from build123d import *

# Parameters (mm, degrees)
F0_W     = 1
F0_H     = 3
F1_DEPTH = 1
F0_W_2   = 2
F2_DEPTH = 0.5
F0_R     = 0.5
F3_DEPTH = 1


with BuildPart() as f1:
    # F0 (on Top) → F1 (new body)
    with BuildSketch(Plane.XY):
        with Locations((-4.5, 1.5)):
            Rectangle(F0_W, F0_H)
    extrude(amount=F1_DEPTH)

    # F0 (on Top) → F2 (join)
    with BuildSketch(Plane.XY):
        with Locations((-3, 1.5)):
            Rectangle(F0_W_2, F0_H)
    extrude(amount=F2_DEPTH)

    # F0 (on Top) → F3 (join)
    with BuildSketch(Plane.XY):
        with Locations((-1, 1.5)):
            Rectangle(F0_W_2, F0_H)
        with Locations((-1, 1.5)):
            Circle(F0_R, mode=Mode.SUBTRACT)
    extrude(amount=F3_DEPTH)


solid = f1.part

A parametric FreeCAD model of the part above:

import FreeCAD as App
import Part
import Sketcher
Q = App.Units.Quantity


def add_polygon(sketch, points):
    """Adds a closed chain of lines whose ends are joined by coincident constraints."""
    first, n = sketch.GeometryCount, len(points)
    for a, b in zip(points, points[1:] + points[:1]):
        sketch.addGeometry(Part.LineSegment(App.Vector(*a, 0), App.Vector(*b, 0)), False)
    for i in range(n):
        sketch.addConstraint(Sketcher.Constraint("Coincident", first + i, 2, first + (i + 1) % n, 1))

doc = App.newDocument("Part")
body = doc.addObject("PartDesign::Body", "Body")

sketch1 = doc.addObject("Sketcher::SketchObject", "Sketch")
body.addObject(sketch1)
sketch1.AttachmentSupport = (doc.XY_Plane, [""])
sketch1.MapMode = "FlatFace"
add_polygon(sketch1, [(-5, 3), (-5, 0), (-4, 0), (-4, 3)])
sketch1.addConstraint([
    Sketcher.Constraint("Vertical", 0),
    Sketcher.Constraint("Horizontal", 1),
    Sketcher.Constraint("Vertical", 2),
    Sketcher.Constraint("Horizontal", 3),
    Sketcher.Constraint("PointOnObject", 0, 2, -1),
    Sketcher.Constraint("DistanceX", 1, 1, 1, 2, Q("1 mm")),
    Sketcher.Constraint("DistanceY", 0, 2, 0, 1, Q("3 mm")),
    Sketcher.Constraint("DistanceX", 0, 2, -1, 1, Q("5 mm")),
])
pad1 = doc.addObject("PartDesign::Pad", "Pad")
body.addObject(pad1)
pad1.Profile = sketch1
pad1.Length = 1

sketch2 = doc.addObject("Sketcher::SketchObject", "Sketch001")
body.addObject(sketch2)
sketch2.AttachmentSupport = (doc.XY_Plane, [""])
sketch2.MapMode = "FlatFace"
add_polygon(sketch2, [(-4, 3), (-4, 0), (-2, 0), (-2, 3)])
sketch2.addConstraint([
    Sketcher.Constraint("Vertical", 0),
    Sketcher.Constraint("Horizontal", 1),
    Sketcher.Constraint("Vertical", 2),
    Sketcher.Constraint("Horizontal", 3),
    Sketcher.Constraint("PointOnObject", 0, 2, -1),
    Sketcher.Constraint("DistanceX", 1, 1, 1, 2, Q("2 mm")),
    Sketcher.Constraint("DistanceY", 0, 2, 0, 1, Q("3 mm")),
    Sketcher.Constraint("DistanceX", 0, 2, -1, 1, Q("4 mm")),
])
pad2 = doc.addObject("PartDesign::Pad", "Pad001")
body.addObject(pad2)
pad2.Profile = sketch2
pad2.Length = 0.5

sketch3 = doc.addObject("Sketcher::SketchObject", "Sketch002")
body.addObject(sketch3)
sketch3.AttachmentSupport = (doc.XY_Plane, [""])
sketch3.MapMode = "FlatFace"
add_polygon(sketch3, [(-2, 3), (-2, 0), (0, 0), (0, 3)])
sketch3.addGeometry(Part.Circle(App.Vector(-1, 1.5, 0), App.Vector(0, 0, 1), 0.5), False)
sketch3.addConstraint([
    Sketcher.Constraint("Vertical", 0),
    Sketcher.Constraint("Horizontal", 1),
    Sketcher.Constraint("Vertical", 2),
    Sketcher.Constraint("Horizontal", 3),
    Sketcher.Constraint("Coincident", 1, 2, -1, 1),
    Sketcher.Constraint("Diameter", 4, Q("1 mm")),
    Sketcher.Constraint("DistanceX", 1, 1, 1, 2, Q("2 mm")),
    Sketcher.Constraint("DistanceY", 0, 2, 0, 1, Q("3 mm")),
    Sketcher.Constraint("DistanceX", 4, 3, -1, 1, Q("1 mm")),
    Sketcher.Constraint("DistanceY", -1, 1, 4, 3, Q("1.5 mm")),
])
pad3 = doc.addObject("PartDesign::Pad", "Pad002")
body.addObject(pad3)
pad3.Profile = sketch3
pad3.Length = 1

doc.recompute()
